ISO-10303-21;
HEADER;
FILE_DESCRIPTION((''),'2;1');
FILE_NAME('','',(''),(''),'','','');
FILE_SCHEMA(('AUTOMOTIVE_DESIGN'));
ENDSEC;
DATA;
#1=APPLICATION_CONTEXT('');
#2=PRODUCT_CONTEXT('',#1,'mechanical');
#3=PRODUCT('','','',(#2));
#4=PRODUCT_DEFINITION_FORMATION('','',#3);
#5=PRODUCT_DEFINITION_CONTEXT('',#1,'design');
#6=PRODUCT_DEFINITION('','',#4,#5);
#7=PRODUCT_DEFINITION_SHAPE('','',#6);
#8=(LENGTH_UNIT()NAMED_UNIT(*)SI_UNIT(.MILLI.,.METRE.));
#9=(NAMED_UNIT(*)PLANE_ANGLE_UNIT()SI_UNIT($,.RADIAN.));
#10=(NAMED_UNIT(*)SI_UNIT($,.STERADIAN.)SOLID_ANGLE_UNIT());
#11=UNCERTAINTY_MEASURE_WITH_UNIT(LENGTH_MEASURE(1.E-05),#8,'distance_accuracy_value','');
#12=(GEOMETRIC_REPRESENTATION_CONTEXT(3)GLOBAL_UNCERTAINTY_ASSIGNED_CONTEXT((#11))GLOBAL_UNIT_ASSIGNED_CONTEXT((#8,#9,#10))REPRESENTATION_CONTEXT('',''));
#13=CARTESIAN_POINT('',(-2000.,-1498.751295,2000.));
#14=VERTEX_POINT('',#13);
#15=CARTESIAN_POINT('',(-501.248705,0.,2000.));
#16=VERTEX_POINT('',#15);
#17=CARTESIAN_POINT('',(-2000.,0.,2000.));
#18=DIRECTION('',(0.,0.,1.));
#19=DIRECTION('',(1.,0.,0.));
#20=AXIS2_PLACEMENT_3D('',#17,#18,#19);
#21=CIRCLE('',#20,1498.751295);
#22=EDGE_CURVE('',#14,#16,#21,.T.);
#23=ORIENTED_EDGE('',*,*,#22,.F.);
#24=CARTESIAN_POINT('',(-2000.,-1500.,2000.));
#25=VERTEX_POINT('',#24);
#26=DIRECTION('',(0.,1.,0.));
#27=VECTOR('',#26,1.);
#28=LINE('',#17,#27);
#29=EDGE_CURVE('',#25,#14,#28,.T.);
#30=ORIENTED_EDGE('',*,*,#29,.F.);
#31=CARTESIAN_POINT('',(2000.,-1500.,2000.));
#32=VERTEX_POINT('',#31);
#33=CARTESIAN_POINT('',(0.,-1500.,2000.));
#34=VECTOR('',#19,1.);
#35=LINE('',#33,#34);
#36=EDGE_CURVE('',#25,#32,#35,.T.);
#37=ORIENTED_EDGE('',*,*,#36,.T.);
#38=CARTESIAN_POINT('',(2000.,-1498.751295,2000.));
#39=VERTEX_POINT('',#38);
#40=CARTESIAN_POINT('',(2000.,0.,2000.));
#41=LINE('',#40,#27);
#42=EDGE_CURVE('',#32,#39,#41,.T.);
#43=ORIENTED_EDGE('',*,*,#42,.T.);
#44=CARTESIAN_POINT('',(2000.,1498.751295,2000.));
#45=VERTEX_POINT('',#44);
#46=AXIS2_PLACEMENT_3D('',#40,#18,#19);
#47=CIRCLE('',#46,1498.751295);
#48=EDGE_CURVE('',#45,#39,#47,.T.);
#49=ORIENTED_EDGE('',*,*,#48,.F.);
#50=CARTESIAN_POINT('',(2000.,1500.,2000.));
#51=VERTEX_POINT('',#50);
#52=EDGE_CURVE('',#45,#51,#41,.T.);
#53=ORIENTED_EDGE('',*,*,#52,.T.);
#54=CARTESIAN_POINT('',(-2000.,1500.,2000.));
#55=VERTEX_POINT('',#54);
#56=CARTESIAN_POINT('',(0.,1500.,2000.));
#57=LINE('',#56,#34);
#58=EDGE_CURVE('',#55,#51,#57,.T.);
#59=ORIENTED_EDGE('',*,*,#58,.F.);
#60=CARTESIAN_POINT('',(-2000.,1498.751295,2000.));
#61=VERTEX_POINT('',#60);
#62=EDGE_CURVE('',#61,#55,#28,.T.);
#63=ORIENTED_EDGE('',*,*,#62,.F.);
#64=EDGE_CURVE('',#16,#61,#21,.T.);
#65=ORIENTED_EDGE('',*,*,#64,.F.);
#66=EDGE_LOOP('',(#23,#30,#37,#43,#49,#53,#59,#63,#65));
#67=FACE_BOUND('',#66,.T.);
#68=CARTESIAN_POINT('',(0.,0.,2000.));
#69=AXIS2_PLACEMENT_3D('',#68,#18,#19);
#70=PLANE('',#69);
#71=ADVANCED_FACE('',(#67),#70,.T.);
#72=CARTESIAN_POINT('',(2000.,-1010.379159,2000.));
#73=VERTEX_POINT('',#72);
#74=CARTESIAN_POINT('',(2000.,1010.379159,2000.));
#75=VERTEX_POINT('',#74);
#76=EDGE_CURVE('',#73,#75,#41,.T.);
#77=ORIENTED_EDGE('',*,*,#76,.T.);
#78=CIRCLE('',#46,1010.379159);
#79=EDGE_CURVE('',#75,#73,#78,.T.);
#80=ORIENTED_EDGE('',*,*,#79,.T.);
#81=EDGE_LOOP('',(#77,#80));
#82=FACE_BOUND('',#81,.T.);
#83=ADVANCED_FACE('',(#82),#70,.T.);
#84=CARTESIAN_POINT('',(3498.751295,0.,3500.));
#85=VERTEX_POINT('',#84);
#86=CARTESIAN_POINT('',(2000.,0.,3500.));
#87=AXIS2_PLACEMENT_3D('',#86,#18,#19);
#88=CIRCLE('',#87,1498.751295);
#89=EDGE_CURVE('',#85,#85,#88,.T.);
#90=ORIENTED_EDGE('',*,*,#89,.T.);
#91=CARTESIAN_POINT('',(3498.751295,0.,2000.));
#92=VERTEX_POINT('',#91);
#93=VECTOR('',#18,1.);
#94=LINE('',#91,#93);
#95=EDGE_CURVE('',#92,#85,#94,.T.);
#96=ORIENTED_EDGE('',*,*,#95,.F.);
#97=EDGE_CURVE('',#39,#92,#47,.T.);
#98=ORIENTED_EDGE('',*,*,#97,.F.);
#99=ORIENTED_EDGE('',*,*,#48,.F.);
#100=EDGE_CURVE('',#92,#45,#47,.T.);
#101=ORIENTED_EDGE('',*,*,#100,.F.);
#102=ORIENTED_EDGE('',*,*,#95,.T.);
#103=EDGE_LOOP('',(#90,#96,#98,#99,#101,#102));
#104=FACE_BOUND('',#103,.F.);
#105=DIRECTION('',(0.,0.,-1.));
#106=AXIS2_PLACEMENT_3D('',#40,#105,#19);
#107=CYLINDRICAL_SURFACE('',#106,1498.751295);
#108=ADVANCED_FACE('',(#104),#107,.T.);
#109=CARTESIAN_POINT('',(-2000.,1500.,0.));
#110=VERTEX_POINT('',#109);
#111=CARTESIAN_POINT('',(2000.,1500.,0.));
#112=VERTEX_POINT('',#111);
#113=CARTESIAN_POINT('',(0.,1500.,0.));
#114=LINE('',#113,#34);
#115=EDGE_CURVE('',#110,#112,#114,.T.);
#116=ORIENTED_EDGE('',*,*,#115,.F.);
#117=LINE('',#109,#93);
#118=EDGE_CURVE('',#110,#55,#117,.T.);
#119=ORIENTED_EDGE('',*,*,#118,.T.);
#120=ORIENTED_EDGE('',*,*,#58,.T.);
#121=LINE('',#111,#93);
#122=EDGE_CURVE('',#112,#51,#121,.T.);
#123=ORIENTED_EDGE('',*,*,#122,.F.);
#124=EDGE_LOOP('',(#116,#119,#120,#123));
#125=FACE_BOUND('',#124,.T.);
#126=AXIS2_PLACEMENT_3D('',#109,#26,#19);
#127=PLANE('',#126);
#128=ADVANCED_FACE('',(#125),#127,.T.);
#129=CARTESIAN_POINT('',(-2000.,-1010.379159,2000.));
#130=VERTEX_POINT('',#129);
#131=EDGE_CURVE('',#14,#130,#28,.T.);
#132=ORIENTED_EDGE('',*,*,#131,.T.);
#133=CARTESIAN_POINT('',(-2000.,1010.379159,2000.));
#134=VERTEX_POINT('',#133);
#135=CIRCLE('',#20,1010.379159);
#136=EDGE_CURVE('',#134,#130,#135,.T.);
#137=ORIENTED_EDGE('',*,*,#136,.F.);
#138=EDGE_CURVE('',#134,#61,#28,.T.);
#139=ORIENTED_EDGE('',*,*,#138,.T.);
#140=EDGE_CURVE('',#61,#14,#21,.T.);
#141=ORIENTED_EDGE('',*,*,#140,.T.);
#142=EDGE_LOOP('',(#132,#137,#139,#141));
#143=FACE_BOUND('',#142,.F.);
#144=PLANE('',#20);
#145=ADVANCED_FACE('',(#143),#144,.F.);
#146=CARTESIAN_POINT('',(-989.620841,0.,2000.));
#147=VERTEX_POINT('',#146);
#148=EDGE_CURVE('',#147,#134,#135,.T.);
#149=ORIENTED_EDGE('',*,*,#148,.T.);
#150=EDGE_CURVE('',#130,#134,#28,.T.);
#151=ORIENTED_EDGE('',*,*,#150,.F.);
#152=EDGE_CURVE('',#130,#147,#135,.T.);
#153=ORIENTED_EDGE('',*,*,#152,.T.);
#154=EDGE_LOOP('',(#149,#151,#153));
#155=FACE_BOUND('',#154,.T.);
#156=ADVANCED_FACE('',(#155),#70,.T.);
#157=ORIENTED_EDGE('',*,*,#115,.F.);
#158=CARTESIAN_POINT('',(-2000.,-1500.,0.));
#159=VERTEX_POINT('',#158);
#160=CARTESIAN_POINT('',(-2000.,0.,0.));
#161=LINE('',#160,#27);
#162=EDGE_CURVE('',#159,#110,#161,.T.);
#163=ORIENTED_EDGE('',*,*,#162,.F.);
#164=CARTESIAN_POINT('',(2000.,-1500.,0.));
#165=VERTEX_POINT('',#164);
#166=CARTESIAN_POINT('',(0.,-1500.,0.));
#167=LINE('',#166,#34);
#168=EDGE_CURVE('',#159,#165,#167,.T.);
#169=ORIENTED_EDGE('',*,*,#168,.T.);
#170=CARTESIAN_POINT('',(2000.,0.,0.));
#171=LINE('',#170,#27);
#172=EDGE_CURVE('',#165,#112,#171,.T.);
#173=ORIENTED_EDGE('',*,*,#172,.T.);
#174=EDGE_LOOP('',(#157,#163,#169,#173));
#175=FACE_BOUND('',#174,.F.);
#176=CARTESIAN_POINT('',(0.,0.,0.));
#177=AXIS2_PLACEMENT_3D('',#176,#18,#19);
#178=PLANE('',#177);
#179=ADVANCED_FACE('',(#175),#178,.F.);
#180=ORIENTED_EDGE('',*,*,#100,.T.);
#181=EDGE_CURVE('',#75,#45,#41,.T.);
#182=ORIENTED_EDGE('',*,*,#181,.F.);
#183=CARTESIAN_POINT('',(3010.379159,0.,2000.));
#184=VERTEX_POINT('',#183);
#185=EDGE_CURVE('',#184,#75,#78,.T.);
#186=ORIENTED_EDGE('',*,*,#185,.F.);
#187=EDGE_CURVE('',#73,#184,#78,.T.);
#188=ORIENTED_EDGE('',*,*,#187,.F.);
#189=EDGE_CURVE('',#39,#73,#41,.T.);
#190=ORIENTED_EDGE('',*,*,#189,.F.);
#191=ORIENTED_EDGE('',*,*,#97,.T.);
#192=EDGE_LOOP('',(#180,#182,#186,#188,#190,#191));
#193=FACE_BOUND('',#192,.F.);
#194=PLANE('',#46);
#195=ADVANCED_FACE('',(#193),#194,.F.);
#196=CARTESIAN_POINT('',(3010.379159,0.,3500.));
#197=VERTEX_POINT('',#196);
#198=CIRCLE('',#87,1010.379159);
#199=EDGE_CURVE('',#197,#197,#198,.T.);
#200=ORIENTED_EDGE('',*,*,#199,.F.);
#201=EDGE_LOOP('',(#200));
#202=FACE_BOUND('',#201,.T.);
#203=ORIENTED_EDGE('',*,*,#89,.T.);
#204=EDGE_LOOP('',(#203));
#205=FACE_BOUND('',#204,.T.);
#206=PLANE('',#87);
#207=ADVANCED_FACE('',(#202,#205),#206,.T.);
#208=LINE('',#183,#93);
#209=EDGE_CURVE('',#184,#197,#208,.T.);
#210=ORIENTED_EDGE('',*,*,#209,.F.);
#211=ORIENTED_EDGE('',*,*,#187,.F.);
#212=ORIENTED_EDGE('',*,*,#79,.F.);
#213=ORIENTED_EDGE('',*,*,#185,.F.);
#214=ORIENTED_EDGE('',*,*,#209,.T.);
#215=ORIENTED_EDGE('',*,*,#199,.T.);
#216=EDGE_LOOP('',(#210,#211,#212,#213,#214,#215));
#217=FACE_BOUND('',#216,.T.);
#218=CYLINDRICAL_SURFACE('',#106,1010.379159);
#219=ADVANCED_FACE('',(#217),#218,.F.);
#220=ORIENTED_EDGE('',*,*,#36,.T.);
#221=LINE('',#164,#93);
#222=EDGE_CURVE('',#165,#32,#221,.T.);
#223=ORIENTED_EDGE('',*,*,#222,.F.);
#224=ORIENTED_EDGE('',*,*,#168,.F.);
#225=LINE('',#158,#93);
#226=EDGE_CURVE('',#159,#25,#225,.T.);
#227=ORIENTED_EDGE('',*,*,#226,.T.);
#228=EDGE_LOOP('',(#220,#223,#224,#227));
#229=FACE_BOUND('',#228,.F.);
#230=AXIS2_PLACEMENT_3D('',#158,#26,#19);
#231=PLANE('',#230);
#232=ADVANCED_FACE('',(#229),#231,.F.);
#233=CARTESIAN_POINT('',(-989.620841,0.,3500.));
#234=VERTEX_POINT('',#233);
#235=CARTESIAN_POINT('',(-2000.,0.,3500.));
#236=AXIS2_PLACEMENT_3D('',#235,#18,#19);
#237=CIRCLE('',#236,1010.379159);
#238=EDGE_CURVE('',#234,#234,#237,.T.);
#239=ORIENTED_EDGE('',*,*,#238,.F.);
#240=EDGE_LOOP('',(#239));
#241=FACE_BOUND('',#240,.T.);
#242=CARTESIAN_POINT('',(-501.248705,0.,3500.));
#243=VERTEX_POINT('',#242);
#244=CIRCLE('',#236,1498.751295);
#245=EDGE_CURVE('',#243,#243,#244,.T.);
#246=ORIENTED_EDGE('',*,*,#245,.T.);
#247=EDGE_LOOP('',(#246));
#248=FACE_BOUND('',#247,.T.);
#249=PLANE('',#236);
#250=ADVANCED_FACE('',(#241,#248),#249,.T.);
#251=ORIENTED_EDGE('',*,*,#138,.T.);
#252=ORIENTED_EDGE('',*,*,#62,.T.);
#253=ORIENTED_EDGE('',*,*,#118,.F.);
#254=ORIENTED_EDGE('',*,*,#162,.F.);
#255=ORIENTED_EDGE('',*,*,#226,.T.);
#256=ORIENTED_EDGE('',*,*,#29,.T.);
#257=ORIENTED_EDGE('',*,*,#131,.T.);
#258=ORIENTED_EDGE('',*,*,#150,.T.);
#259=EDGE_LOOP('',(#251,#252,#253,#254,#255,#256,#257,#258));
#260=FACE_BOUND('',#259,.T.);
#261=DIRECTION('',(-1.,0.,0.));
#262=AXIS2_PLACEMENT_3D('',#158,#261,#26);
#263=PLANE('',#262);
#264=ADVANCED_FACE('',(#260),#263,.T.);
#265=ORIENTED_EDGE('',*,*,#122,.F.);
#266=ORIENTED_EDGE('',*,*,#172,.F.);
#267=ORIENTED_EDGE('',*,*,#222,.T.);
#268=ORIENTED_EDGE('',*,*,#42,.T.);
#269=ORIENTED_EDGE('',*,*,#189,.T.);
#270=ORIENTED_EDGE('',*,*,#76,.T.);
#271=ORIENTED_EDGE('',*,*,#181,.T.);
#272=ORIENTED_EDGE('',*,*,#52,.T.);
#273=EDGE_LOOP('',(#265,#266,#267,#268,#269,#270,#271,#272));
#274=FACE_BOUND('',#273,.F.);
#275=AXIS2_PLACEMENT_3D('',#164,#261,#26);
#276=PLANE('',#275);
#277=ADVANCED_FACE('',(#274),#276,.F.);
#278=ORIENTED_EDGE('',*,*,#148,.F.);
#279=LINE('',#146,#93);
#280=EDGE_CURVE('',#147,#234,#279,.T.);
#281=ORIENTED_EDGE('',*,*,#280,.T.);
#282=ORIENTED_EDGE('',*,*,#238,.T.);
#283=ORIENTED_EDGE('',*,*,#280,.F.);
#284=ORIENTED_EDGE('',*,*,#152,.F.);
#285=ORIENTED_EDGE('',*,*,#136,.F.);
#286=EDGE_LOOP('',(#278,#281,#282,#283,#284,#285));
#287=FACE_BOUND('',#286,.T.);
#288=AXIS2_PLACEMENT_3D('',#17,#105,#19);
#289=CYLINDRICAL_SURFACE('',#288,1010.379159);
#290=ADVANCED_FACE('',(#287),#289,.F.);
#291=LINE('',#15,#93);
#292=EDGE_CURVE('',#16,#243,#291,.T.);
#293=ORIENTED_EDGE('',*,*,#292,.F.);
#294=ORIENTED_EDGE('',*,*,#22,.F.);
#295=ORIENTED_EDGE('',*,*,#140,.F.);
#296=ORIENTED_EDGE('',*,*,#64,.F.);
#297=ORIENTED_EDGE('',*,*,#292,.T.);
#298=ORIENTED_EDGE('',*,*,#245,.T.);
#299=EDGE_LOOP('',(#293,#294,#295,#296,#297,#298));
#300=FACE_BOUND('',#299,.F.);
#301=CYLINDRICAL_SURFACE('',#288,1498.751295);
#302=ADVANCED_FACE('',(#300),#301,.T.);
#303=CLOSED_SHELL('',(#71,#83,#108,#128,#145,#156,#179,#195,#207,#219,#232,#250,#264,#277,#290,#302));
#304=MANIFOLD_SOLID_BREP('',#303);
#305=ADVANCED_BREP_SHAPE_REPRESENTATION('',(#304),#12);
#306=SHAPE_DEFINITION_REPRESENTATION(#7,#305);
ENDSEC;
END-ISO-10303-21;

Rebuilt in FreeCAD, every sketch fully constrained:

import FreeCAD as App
import Part
import Sketcher

V = App.Vector
Q = App.Units.Quantity

doc = App.newDocument("Part")
body = doc.addObject("PartDesign::Body", "Body")

sketch1 = body.newObject("Sketcher::SketchObject", "Sketch")
sketch1.AttachmentSupport = (doc.getObject("XY_Plane"), [""])
sketch1.MapMode = "FlatFace"
sketch1.addGeometry([
    Part.LineSegment(V(-2000, 1500, 0), V(-2000, -1500, 0)),
    Part.LineSegment(V(-2000, -1500, 0), V(2000, -1500, 0)),
    Part.LineSegment(V(2000, -1500, 0), V(2000, 1500, 0)),
    Part.LineSegment(V(2000, 1500, 0), V(-2000, 1500, 0)),
], False)
sketch1.addConstraint([
    Sketcher.Constraint("Coincident", 0, 2, 1, 1),
    Sketcher.Constraint("Coincident", 1, 2, 2, 1),
    Sketcher.Constraint("Coincident", 2, 2, 3, 1),
    Sketcher.Constraint("Coincident", 3, 2, 0, 1),
    Sketcher.Constraint("Vertical", 0),
    Sketcher.Constraint("Horizontal", 1),
    Sketcher.Constraint("Vertical", 2),
    Sketcher.Constraint("Horizontal", 3),
    Sketcher.Constraint("Symmetric", 0, 2, 2, 2, -1, 1),
    Sketcher.Constraint("DistanceX", 1, 1, 1, 2, Q("4000 mm")),
    Sketcher.Constraint("DistanceY", 0, 2, 0, 1, Q("3000 mm")),
])
pad1 = body.newObject("PartDesign::Pad", "Pad")
pad1.Profile = sketch1
pad1.Length = 2000

sketch2 = body.newObject("Sketcher::SketchObject", "Sketch001")
sketch2.AttachmentSupport = (doc.getObject("XY_Plane"), [""])
sketch2.MapMode = "FlatFace"
sketch2.AttachmentOffset = App.Placement(V(0, 0, 2000), App.Rotation())
sketch2.addGeometry([
    Part.Circle(V(-2000, 0, 0), V(0, 0, 1), 1499),
    Part.Circle(V(-2000, 0, 0), V(0, 0, 1), 1010),
    Part.Circle(V(2000, 0, 0), V(0, 0, 1), 1499),
    Part.Circle(V(2000, 0, 0), V(0, 0, 1), 1010),
], False)
sketch2.addConstraint([
    Sketcher.Constraint("Coincident", 1, 3, 0, 3),
    Sketcher.Constraint("Coincident", 3, 3, 2, 3),
    Sketcher.Constraint("Equal", 0, 2),
    Sketcher.Constraint("Equal", 1, 3),
    Sketcher.Constraint("Symmetric", 0, 3, 2, 3, -1, 1),
    Sketcher.Constraint("PointOnObject", 0, 3, -1),
    Sketcher.Constraint("DistanceX", 0, 3, -1, 1, Q("2000 mm")),
    Sketcher.Constraint("Diameter", 0, Q("2997.50259 mm")),
    Sketcher.Constraint("Diameter", 1, Q("2020.758318 mm")),
])
pad2 = body.newObject("PartDesign::Pad", "Pad001")
pad2.Profile = sketch2
pad2.Length = 1500

doc.recompute()
